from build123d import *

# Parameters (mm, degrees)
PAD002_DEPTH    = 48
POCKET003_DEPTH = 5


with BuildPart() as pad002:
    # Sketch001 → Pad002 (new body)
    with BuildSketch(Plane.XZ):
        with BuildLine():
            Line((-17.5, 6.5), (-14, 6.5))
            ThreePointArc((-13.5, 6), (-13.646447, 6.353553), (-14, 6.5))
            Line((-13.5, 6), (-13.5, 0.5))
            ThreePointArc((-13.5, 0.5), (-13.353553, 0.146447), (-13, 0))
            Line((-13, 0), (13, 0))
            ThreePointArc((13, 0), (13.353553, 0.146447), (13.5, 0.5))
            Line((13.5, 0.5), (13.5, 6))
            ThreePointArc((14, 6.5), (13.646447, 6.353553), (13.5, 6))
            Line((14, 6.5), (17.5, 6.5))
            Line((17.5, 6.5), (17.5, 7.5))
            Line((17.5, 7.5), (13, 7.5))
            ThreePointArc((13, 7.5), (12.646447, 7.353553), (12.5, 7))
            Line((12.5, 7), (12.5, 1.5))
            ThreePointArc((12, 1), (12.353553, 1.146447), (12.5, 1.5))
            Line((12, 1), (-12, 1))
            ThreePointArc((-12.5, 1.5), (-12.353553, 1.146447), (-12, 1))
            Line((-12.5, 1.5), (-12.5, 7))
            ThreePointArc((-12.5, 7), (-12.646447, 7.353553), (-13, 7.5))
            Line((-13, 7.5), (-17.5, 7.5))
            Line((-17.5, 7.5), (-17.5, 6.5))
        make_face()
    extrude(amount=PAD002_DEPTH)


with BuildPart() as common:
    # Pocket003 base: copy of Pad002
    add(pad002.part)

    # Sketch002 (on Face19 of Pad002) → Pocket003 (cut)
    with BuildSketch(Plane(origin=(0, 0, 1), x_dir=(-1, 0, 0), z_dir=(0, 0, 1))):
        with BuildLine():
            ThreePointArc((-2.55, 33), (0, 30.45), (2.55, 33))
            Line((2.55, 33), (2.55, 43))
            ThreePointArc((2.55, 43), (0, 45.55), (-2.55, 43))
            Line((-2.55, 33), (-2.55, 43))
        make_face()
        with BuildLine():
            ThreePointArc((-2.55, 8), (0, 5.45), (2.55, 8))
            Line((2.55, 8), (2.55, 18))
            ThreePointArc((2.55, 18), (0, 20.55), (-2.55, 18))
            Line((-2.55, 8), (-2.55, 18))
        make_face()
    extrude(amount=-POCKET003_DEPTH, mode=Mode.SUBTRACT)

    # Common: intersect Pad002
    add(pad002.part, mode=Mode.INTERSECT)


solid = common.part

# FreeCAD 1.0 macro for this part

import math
import FreeCAD as App
import Part
import Sketcher

doc = App.newDocument("Part")
body = doc.addObject("PartDesign::Body", "Body")

sketch1 = body.newObject("Sketcher::SketchObject", "Sketch")
sketch1.AttachmentSupport = (doc.getObject("XZ_Plane"), [""])
sketch1.MapMode = "FlatFace"
sketch1.addGeometry([
    Part.LineSegment(App.Vector(-17.5, 6.5, 0), App.Vector(-14, 6.5, 0)),
    Part.ArcOfCircle(Part.Circle(App.Vector(-14, 6, 0), App.Vector(0, 0, 1), 0.5), math.radians(0), math.radians(90)),
    Part.LineSegment(App.Vector(-13.5, 6, 0), App.Vector(-13.5, 0.5, 0)),
    Part.ArcOfCircle(Part.Circle(App.Vector(-13, 0.5, 0), App.Vector(0, 0, 1), 0.5), math.radians(-180), math.radians(-90)),
    Part.LineSegment(App.Vector(-13, 0, 0), App.Vector(13, 0, 0)),
    Part.ArcOfCircle(Part.Circle(App.Vector(13, 0.5, 0), App.Vector(0, 0, 1), 0.5), math.radians(-90), math.radians(0)),
    Part.LineSegment(App.Vector(13.5, 0.5, 0), App.Vector(13.5, 6, 0)),
    Part.ArcOfCircle(Part.Circle(App.Vector(14, 6, 0), App.Vector(0, 0, 1), 0.5), math.radians(90), math.radians(180)),
    Part.LineSegment(App.Vector(14, 6.5, 0), App.Vector(17.5, 6.5, 0)),
    Part.LineSegment(App.Vector(17.5, 6.5, 0), App.Vector(17.5, 7.5, 0)),
    Part.LineSegment(App.Vector(17.5, 7.5, 0), App.Vector(13, 7.5, 0)),
    Part.ArcOfCircle(Part.Circle(App.Vector(13, 7, 0), App.Vector(0, 0, 1), 0.5), math.radians(90), math.radians(180)),
    Part.LineSegment(App.Vector(12.5, 7, 0), App.Vector(12.5, 1.5, 0)),
    Part.ArcOfCircle(Part.Circle(App.Vector(12, 1.5, 0), App.Vector(0, 0, 1), 0.5), math.radians(-90), math.radians(0)),
    Part.LineSegment(App.Vector(12, 1, 0), App.Vector(-12, 1, 0)),
    Part.ArcOfCircle(Part.Circle(App.Vector(-12, 1.5, 0), App.Vector(0, 0, 1), 0.5), math.radians(-180), math.radians(-90)),
    Part.LineSegment(App.Vector(-12.5, 1.5, 0), App.Vector(-12.5, 7, 0)),
    Part.ArcOfCircle(Part.Circle(App.Vector(-13, 7, 0), App.Vector(0, 0, 1), 0.5), math.radians(0), math.radians(90)),
    Part.LineSegment(App.Vector(-13, 7.5, 0), App.Vector(-17.5, 7.5, 0)),
    Part.LineSegment(App.Vector(-17.5, 7.5, 0), App.Vector(-17.5, 6.5, 0)),
], False)
sketch1.addConstraint([
    Sketcher.Constraint("Coincident", 0, 2, 1, 2),
    Sketcher.Constraint("Coincident", 1, 1, 2, 1),
    Sketcher.Constraint("Coincident", 2, 2, 3, 1),
    Sketcher.Constraint("Coincident", 3, 2, 4, 1),
    Sketcher.Constraint("Coincident", 4, 2, 5, 1),
    Sketcher.Constraint("Coincident", 5, 2, 6, 1),
    Sketcher.Constraint("Coincident", 6, 2, 7, 2),
    Sketcher.Constraint("Coincident", 7, 1, 8, 1),
    Sketcher.Constraint("Coincident", 8, 2, 9, 1),
    Sketcher.Constraint("Coincident", 9, 2, 10, 1),
    Sketcher.Constraint("Coincident", 10, 2, 11, 1),
    Sketcher.Constraint("Coincident", 11, 2, 12, 1),
    Sketcher.Constraint("Coincident", 12, 2, 13, 2),
    Sketcher.Constraint("Coincident", 13, 1, 14, 1),
    Sketcher.Constraint("Coincident", 14, 2, 15, 2),
    Sketcher.Constraint("Coincident", 15, 1, 16, 1),
    Sketcher.Constraint("Coincident", 16, 2, 17, 1),
    Sketcher.Constraint("Coincident", 17, 2, 18, 1),
    Sketcher.Constraint("Coincident", 18, 2, 19, 1),
    Sketcher.Constraint("Coincident", 19, 2, 0, 1),
    Sketcher.Constraint("Horizontal", 0),
    Sketcher.Constraint("Vertical", 2),
    Sketcher.Constraint("Horizontal", 4),
    Sketcher.Constraint("Vertical", 6),
    Sketcher.Constraint("Horizontal", 8),
    Sketcher.Constraint("Vertical", 9),
    Sketcher.Constraint("Horizontal", 10),
    Sketcher.Constraint("Vertical", 12),
    Sketcher.Constraint("Horizontal", 14),
    Sketcher.Constraint("Vertical", 16),
    Sketcher.Constraint("Horizontal", 18),
    Sketcher.Constraint("Vertical", 19),
    Sketcher.Constraint("Equal", 1, 3),
    Sketcher.Constraint("Equal", 3, 5),
    Sketcher.Constraint("Equal", 5, 7),
    Sketcher.Constraint("Equal", 7, 11),
    Sketcher.Constraint("Equal", 11, 13),
    Sketcher.Constraint("Equal", 13, 15),
    Sketcher.Constraint("Equal", 15, 17),
    Sketcher.Constraint("Symmetric", 3, 2, 4, 2, -1, 1),
    Sketcher.Constraint("Symmetric", 1, 3, 7, 3, -2),
    Sketcher.Constraint("Symmetric", 11, 3, 17, 3, -2),
    Sketcher.Constraint("Horizontal", 7, 3, 1, 1),
    Sketcher.Constraint("Horizontal", 5, 3, 2, 2),
    Sketcher.Constraint("Horizontal", 2, 2, 5, 2),
    Sketcher.Constraint("Horizontal", 1, 1, 6, 2),
    Sketcher.Constraint("Horizontal", 17, 3, 11, 2),
    Sketcher.Constraint("Horizontal", 15, 3, 12, 2),
    Sketcher.Constraint("Horizontal", 12, 2, 15, 1),
    Sketcher.Constraint("Horizontal", 11, 2, 16, 2),
    Sketcher.Constraint("Vertical", 1, 3, 0, 2),
    Sketcher.Constraint("Vertical", 17, 3, 3, 2),
    Sketcher.Constraint("Vertical", 4, 2, 10, 2),
    Sketcher.Constraint("Vertical", 15, 3, 14, 2),
    Sketcher.Constraint("Vertical", 3, 2, 17, 2),
    Sketcher.Constraint("Equal", 0, 8),
    Sketcher.Constraint("Equal", 10, 18),
    Sketcher.Constraint("Equal", 6, 12),
    Sketcher.Constraint("Radius", 1, 0.500001),
    Sketcher.Constraint("DistanceX", 4, 1, 4, 2, 26.0),
    Sketcher.Constraint("DistanceX", 14, 2, 14, 1, 24.0),
    Sketcher.Constraint("DistanceY", 9, 1, 9, 2, 1.0),
    Sketcher.Constraint("DistanceX", 0, 1, 0, 2, 3.5),
    Sketcher.Constraint("DistanceX", 10, 2, 10, 1, 4.5),
    Sketcher.Constraint("DistanceY", 2, 2, 2, 1, 5.5),
])
pad1 = body.newObject("PartDesign::Pad", "Pad")
pad1.Profile = sketch1
pad1.Length = 48
body2 = doc.addObject("PartDesign::Body", "Body001")
doc.recompute()

body2.BaseFeature = body
doc.recompute()

sketch2 = body2.newObject("Sketcher::SketchObject", "Sketch001")
sketch2.AttachmentSupport = (doc.getObject("XY_Plane001"), [""])
sketch2.MapMode = "FlatFace"
sketch2.AttachmentOffset = App.Placement(App.Vector(0, 0, 1), App.Rotation())
sketch2.addGeometry([
    Part.ArcOfCircle(Part.Circle(App.Vector(0, -33, 0), App.Vector(0, 0, 1), 2.5), math.radians(0), math.radians(180)),
    Part.LineSegment(App.Vector(-2.5, -33, 0), App.Vector(-2.5, -43, 0)),
    Part.ArcOfCircle(Part.Circle(App.Vector(0, -43, 0), App.Vector(0, 0, 1), 2.5), math.radians(180), math.radians(360)),
    Part.LineSegment(App.Vector(2.5, -43, 0), App.Vector(2.5, -33, 0)),
    Part.ArcOfCircle(Part.Circle(App.Vector(0, -8, 0), App.Vector(0, 0, 1), 2.5), math.radians(0), math.radians(180)),
    Part.LineSegment(App.Vector(-2.5, -8, 0), App.Vector(-2.5, -18, 0)),
    Part.ArcOfCircle(Part.Circle(App.Vector(0, -18, 0), App.Vector(0, 0, 1), 2.5), math.radians(180), math.radians(360)),
    Part.LineSegment(App.Vector(2.5, -18, 0), App.Vector(2.5, -8, 0)),
], False)
sketch2.addConstraint([
    Sketcher.Constraint("Tangent", 0, 2, 1, 1),
    Sketcher.Constraint("Tangent", 1, 2, 2, 1),
    Sketcher.Constraint("Tangent", 2, 2, 3, 1),
    Sketcher.Constraint("Tangent", 3, 2, 0, 1),
    Sketcher.Constraint("Tangent", 4, 2, 5, 1),
    Sketcher.Constraint("Tangent", 5, 2, 6, 1),
    Sketcher.Constraint("Tangent", 6, 2, 7, 1),
    Sketcher.Constraint("Tangent", 7, 2, 4, 1),
    Sketcher.Constraint("Vertical", 1),
    Sketcher.Constraint("Vertical", 3),
    Sketcher.Constraint("Vertical", 5),
    Sketcher.Constraint("Vertical", 7),
    Sketcher.Constraint("Equal", 2, 4),
    Sketcher.Constraint("PointOnObject", 0, 3, -2),
    Sketcher.Constraint("PointOnObject", 4, 3, -2),
    Sketcher.Constraint("Equal", 3, 5),
    Sketcher.Constraint("DistanceY", 1, 2, 1, 1, 10.0),
    Sketcher.Constraint("Radius", 0, 2.55),
    Sketcher.Constraint("DistanceY", 0, 3, -1, 1, 33.0),
    Sketcher.Constraint("DistanceY", 4, 3, -1, 1, 8.0),
])
pocket1 = body2.newObject("PartDesign::Pocket", "Pocket")
pocket1.Profile = sketch2
pocket1.Length = 5
doc.recompute()

boolean = body2.newObject("PartDesign::Boolean", "Boolean")
boolean.Type = "Common"
boolean.addObjects([body])

doc.recompute()
